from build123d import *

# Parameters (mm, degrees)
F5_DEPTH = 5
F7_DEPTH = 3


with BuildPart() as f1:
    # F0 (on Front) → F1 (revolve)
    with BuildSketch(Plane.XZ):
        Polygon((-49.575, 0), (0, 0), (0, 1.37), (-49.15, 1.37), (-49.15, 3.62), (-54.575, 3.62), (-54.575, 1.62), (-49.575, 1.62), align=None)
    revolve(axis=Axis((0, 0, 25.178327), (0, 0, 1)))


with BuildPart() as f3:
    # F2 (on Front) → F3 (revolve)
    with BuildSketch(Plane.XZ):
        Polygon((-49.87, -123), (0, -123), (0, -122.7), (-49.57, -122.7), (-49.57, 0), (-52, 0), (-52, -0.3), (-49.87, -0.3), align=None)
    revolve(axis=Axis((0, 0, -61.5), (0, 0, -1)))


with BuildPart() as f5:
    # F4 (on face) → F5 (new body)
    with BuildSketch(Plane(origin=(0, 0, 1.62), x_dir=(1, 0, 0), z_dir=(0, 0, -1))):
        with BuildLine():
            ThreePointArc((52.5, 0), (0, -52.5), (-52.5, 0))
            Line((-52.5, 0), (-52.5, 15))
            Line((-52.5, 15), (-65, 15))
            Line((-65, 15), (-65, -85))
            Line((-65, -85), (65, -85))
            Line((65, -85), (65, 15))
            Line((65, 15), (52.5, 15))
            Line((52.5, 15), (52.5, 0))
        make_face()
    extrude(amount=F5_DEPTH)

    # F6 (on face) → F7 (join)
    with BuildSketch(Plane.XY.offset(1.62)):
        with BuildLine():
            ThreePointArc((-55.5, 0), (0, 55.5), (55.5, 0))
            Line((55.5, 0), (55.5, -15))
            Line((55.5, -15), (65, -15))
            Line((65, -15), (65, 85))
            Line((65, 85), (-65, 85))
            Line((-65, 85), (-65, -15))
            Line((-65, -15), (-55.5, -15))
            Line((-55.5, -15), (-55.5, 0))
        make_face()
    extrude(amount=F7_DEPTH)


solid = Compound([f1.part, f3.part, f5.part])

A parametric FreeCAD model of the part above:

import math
import FreeCAD as App
import Part
import Sketcher
Q = App.Units.Quantity


def add_polygon(sketch, points):
    """Adds a closed chain of lines whose ends are joined by coincident constraints."""
    first, n = sketch.GeometryCount, len(points)
    for a, b in zip(points, points[1:] + points[:1]):
        sketch.addGeometry(Part.LineSegment(App.Vector(*a, 0), App.Vector(*b, 0)), False)
    for i in range(n):
        sketch.addConstraint(Sketcher.Constraint("Coincident", first + i, 2, first + (i + 1) % n, 1))

doc = App.newDocument("Part")
body = doc.addObject("PartDesign::Body", "Body")

sketch1 = body.newObject("Sketcher::SketchObject", "Sketch")
sketch1.AttachmentSupport = (doc.getObject("XZ_Plane"), [""])
sketch1.MapMode = "FlatFace"
add_polygon(sketch1, [(-49.6, 0), (0, 0), (0, 1.4), (-49.1, 1.4), (-49.1, 3.6), (-54.6, 3.6), (-54.6, 1.6), (-49.6, 1.6)])
sketch1.addConstraint([
    Sketcher.Constraint("Horizontal", 0),
    Sketcher.Constraint("Vertical", 1),
    Sketcher.Constraint("Horizontal", 2),
    Sketcher.Constraint("Vertical", 3),
    Sketcher.Constraint("Horizontal", 4),
    Sketcher.Constraint("Vertical", 5),
    Sketcher.Constraint("Horizontal", 6),
    Sketcher.Constraint("Vertical", 7),
    Sketcher.Constraint("Coincident", 0, 2, -1, 1),
    Sketcher.Constraint("DistanceX", 6, 1, 6, 2, Q("5 mm")),
    Sketcher.Constraint("DistanceY", 5, 2, 5, 1, Q("2 mm")),
    Sketcher.Constraint("DistanceX", 2, 2, 2, 1, Q("49.15 mm")),
    Sketcher.Constraint("DistanceY", 1, 1, 1, 2, Q("1.37 mm")),
    Sketcher.Constraint("DistanceY", 3, 1, 3, 2, Q("2.25 mm")),
    Sketcher.Constraint("DistanceX", 0, 1, 0, 2, Q("49.575 mm")),
])
revolution = body.newObject("PartDesign::Revolution", "Revolution")
revolution.Profile = sketch1
revolution.ReferenceAxis = (sketch1, ["V_Axis"])
revolution.Angle = 360
body2 = doc.addObject("PartDesign::Body", "Body001")

sketch2 = body2.newObject("Sketcher::SketchObject", "Sketch001")
sketch2.AttachmentSupport = (doc.getObject("XZ_Plane001"), [""])
sketch2.MapMode = "FlatFace"
add_polygon(sketch2, [(-49.87, -123), (0, -123), (0, -122.7), (-49.57, -122.7), (-49.57, 0), (-52, 0), (-52, -0.3), (-49.87, -0.3)])
sketch2.addConstraint([
    Sketcher.Constraint("Horizontal", 0),
    Sketcher.Constraint("Vertical", 1),
    Sketcher.Constraint("Horizontal", 2),
    Sketcher.Constraint("Vertical", 3),
    Sketcher.Constraint("Horizontal", 4),
    Sketcher.Constraint("Vertical", 5),
    Sketcher.Constraint("Horizontal", 6),
    Sketcher.Constraint("Vertical", 7),
    Sketcher.Constraint("PointOnObject", 0, 2, -2),
    Sketcher.Constraint("PointOnObject", 3, 2, -1),
    Sketcher.Constraint("Equal", 1, 5),
    Sketcher.Constraint("DistanceY", 1, 1, 1, 2, Q("0.3 mm")),
    Sketcher.Constraint("DistanceY", 3, 1, 3, 2, Q("122.7 mm")),
    Sketcher.Constraint("DistanceX", 4, 2, -1, 1, Q("52 mm")),
    Sketcher.Constraint("DistanceX", 0, 1, 0, 2, Q("49.87 mm")),
    Sketcher.Constraint("DistanceX", 2, 2, 2, 1, Q("49.57 mm")),
])
revolution2 = body2.newObject("PartDesign::Revolution", "Revolution001")
revolution2.Profile = sketch2
revolution2.ReferenceAxis = (sketch2, ["V_Axis"])
revolution2.Angle = 360
body3 = doc.addObject("PartDesign::Body", "Body002")

sketch3 = body3.newObject("Sketcher::SketchObject", "Sketch002")
sketch3.AttachmentSupport = (doc.getObject("XY_Plane002"), [""])
sketch3.MapMode = "FlatFace"
sketch3.AttachmentOffset = App.Placement(App.Vector(0, 0, 1.62), App.Rotation())
sketch3.addGeometry([
    Part.ArcOfCircle(Part.Circle(App.Vector(0, 0, 0), App.Vector(0, 0, 1), 52), math.radians(0), math.radians(180)),
    Part.LineSegment(App.Vector(-52, 0, 0), App.Vector(-52, -15, 0)),
    Part.LineSegment(App.Vector(-52, -15, 0), App.Vector(-65, -15, 0)),
    Part.LineSegment(App.Vector(-65, -15, 0), App.Vector(-65, 85, 0)),
    Part.LineSegment(App.Vector(-65, 85, 0), App.Vector(65, 85, 0)),
    Part.LineSegment(App.Vector(65, 85, 0), App.Vector(65, -15, 0)),
    Part.LineSegment(App.Vector(65, -15, 0), App.Vector(52, -15, 0)),
    Part.LineSegment(App.Vector(52, -15, 0), App.Vector(52, 0, 0)),
], False)
sketch3.addConstraint([
    Sketcher.Constraint("Tangent", 0, 2, 1, 1),
    Sketcher.Constraint("Coincident", 1, 2, 2, 1),
    Sketcher.Constraint("Coincident", 2, 2, 3, 1),
    Sketcher.Constraint("Coincident", 3, 2, 4, 1),
    Sketcher.Constraint("Coincident", 4, 2, 5, 1),
    Sketcher.Constraint("Coincident", 5, 2, 6, 1),
    Sketcher.Constraint("Coincident", 6, 2, 7, 1),
    Sketcher.Constraint("Tangent", 7, 2, 0, 1),
    Sketcher.Constraint("Vertical", 1),
    Sketcher.Constraint("Horizontal", 2),
    Sketcher.Constraint("Vertical", 3),
    Sketcher.Constraint("Horizontal", 4),
    Sketcher.Constraint("Vertical", 5),
    Sketcher.Constraint("Horizontal", 6),
    Sketcher.Constraint("Vertical", 7),
    Sketcher.Constraint("Coincident", 0, 3, -1, 1),
    Sketcher.Constraint("Symmetric", 2, 2, 5, 2, -2),
    Sketcher.Constraint("Radius", 0, Q("52.5 mm")),
    Sketcher.Constraint("DistanceX", 4, 1, 4, 2, Q("130 mm")),
    Sketcher.Constraint("DistanceY", 1, 2, 1, 1, Q("15 mm")),
    Sketcher.Constraint("DistanceY", 3, 1, 3, 2, Q("100 mm")),
])
pad1 = body3.newObject("PartDesign::Pad", "Pad")
pad1.Profile = sketch3
pad1.Length = 5
pad1.Reversed = True

sketch4 = body3.newObject("Sketcher::SketchObject", "Sketch003")
sketch4.AttachmentSupport = (doc.getObject("XY_Plane002"), [""])
sketch4.MapMode = "FlatFace"
sketch4.AttachmentOffset = App.Placement(App.Vector(0, 0, 1.62), App.Rotation())
sketch4.addGeometry([
    Part.ArcOfCircle(Part.Circle(App.Vector(0, 0, 0), App.Vector(0, 0, 1), 56), math.radians(0), math.radians(180)),
    Part.LineSegment(App.Vector(56, 0, 0), App.Vector(56, -15, 0)),
    Part.LineSegment(App.Vector(56, -15, 0), App.Vector(65, -15, 0)),
    Part.LineSegment(App.Vector(65, -15, 0), App.Vector(65, 85, 0)),
    Part.LineSegment(App.Vector(65, 85, 0), App.Vector(-65, 85, 0)),
    Part.LineSegment(App.Vector(-65, 85, 0), App.Vector(-65, -15, 0)),
    Part.LineSegment(App.Vector(-65, -15, 0), App.Vector(-56, -15, 0)),
    Part.LineSegment(App.Vector(-56, -15, 0), App.Vector(-56, 0, 0)),
], False)
sketch4.addConstraint([
    Sketcher.Constraint("Tangent", 0, 1, 1, 1),
    Sketcher.Constraint("Coincident", 1, 2, 2, 1),
    Sketcher.Constraint("Coincident", 2, 2, 3, 1),
    Sketcher.Constraint("Coincident", 3, 2, 4, 1),
    Sketcher.Constraint("Coincident", 4, 2, 5, 1),
    Sketcher.Constraint("Coincident", 5, 2, 6, 1),
    Sketcher.Constraint("Coincident", 6, 2, 7, 1),
    Sketcher.Constraint("Tangent", 7, 2, 0, 2),
    Sketcher.Constraint("Vertical", 1),
    Sketcher.Constraint("Horizontal", 2),
    Sketcher.Constraint("Vertical", 3),
    Sketcher.Constraint("Horizontal", 4),
    Sketcher.Constraint("Vertical", 5),
    Sketcher.Constraint("Horizontal", 6),
    Sketcher.Constraint("Vertical", 7),
    Sketcher.Constraint("Coincident", 0, 3, -1, 1),
    Sketcher.Constraint("Symmetric", 2, 2, 5, 2, -2),
    Sketcher.Constraint("Radius", 0, Q("55.5 mm")),
    Sketcher.Constraint("DistanceX", 4, 2, 4, 1, Q("130 mm")),
    Sketcher.Constraint("DistanceY", 1, 2, 1, 1, Q("15 mm")),
    Sketcher.Constraint("DistanceY", 3, 1, 3, 2, Q("100 mm")),
])
pad2 = body3.newObject("PartDesign::Pad", "Pad001")
pad2.Profile = sketch4
pad2.Length = 3

doc.recompute()
